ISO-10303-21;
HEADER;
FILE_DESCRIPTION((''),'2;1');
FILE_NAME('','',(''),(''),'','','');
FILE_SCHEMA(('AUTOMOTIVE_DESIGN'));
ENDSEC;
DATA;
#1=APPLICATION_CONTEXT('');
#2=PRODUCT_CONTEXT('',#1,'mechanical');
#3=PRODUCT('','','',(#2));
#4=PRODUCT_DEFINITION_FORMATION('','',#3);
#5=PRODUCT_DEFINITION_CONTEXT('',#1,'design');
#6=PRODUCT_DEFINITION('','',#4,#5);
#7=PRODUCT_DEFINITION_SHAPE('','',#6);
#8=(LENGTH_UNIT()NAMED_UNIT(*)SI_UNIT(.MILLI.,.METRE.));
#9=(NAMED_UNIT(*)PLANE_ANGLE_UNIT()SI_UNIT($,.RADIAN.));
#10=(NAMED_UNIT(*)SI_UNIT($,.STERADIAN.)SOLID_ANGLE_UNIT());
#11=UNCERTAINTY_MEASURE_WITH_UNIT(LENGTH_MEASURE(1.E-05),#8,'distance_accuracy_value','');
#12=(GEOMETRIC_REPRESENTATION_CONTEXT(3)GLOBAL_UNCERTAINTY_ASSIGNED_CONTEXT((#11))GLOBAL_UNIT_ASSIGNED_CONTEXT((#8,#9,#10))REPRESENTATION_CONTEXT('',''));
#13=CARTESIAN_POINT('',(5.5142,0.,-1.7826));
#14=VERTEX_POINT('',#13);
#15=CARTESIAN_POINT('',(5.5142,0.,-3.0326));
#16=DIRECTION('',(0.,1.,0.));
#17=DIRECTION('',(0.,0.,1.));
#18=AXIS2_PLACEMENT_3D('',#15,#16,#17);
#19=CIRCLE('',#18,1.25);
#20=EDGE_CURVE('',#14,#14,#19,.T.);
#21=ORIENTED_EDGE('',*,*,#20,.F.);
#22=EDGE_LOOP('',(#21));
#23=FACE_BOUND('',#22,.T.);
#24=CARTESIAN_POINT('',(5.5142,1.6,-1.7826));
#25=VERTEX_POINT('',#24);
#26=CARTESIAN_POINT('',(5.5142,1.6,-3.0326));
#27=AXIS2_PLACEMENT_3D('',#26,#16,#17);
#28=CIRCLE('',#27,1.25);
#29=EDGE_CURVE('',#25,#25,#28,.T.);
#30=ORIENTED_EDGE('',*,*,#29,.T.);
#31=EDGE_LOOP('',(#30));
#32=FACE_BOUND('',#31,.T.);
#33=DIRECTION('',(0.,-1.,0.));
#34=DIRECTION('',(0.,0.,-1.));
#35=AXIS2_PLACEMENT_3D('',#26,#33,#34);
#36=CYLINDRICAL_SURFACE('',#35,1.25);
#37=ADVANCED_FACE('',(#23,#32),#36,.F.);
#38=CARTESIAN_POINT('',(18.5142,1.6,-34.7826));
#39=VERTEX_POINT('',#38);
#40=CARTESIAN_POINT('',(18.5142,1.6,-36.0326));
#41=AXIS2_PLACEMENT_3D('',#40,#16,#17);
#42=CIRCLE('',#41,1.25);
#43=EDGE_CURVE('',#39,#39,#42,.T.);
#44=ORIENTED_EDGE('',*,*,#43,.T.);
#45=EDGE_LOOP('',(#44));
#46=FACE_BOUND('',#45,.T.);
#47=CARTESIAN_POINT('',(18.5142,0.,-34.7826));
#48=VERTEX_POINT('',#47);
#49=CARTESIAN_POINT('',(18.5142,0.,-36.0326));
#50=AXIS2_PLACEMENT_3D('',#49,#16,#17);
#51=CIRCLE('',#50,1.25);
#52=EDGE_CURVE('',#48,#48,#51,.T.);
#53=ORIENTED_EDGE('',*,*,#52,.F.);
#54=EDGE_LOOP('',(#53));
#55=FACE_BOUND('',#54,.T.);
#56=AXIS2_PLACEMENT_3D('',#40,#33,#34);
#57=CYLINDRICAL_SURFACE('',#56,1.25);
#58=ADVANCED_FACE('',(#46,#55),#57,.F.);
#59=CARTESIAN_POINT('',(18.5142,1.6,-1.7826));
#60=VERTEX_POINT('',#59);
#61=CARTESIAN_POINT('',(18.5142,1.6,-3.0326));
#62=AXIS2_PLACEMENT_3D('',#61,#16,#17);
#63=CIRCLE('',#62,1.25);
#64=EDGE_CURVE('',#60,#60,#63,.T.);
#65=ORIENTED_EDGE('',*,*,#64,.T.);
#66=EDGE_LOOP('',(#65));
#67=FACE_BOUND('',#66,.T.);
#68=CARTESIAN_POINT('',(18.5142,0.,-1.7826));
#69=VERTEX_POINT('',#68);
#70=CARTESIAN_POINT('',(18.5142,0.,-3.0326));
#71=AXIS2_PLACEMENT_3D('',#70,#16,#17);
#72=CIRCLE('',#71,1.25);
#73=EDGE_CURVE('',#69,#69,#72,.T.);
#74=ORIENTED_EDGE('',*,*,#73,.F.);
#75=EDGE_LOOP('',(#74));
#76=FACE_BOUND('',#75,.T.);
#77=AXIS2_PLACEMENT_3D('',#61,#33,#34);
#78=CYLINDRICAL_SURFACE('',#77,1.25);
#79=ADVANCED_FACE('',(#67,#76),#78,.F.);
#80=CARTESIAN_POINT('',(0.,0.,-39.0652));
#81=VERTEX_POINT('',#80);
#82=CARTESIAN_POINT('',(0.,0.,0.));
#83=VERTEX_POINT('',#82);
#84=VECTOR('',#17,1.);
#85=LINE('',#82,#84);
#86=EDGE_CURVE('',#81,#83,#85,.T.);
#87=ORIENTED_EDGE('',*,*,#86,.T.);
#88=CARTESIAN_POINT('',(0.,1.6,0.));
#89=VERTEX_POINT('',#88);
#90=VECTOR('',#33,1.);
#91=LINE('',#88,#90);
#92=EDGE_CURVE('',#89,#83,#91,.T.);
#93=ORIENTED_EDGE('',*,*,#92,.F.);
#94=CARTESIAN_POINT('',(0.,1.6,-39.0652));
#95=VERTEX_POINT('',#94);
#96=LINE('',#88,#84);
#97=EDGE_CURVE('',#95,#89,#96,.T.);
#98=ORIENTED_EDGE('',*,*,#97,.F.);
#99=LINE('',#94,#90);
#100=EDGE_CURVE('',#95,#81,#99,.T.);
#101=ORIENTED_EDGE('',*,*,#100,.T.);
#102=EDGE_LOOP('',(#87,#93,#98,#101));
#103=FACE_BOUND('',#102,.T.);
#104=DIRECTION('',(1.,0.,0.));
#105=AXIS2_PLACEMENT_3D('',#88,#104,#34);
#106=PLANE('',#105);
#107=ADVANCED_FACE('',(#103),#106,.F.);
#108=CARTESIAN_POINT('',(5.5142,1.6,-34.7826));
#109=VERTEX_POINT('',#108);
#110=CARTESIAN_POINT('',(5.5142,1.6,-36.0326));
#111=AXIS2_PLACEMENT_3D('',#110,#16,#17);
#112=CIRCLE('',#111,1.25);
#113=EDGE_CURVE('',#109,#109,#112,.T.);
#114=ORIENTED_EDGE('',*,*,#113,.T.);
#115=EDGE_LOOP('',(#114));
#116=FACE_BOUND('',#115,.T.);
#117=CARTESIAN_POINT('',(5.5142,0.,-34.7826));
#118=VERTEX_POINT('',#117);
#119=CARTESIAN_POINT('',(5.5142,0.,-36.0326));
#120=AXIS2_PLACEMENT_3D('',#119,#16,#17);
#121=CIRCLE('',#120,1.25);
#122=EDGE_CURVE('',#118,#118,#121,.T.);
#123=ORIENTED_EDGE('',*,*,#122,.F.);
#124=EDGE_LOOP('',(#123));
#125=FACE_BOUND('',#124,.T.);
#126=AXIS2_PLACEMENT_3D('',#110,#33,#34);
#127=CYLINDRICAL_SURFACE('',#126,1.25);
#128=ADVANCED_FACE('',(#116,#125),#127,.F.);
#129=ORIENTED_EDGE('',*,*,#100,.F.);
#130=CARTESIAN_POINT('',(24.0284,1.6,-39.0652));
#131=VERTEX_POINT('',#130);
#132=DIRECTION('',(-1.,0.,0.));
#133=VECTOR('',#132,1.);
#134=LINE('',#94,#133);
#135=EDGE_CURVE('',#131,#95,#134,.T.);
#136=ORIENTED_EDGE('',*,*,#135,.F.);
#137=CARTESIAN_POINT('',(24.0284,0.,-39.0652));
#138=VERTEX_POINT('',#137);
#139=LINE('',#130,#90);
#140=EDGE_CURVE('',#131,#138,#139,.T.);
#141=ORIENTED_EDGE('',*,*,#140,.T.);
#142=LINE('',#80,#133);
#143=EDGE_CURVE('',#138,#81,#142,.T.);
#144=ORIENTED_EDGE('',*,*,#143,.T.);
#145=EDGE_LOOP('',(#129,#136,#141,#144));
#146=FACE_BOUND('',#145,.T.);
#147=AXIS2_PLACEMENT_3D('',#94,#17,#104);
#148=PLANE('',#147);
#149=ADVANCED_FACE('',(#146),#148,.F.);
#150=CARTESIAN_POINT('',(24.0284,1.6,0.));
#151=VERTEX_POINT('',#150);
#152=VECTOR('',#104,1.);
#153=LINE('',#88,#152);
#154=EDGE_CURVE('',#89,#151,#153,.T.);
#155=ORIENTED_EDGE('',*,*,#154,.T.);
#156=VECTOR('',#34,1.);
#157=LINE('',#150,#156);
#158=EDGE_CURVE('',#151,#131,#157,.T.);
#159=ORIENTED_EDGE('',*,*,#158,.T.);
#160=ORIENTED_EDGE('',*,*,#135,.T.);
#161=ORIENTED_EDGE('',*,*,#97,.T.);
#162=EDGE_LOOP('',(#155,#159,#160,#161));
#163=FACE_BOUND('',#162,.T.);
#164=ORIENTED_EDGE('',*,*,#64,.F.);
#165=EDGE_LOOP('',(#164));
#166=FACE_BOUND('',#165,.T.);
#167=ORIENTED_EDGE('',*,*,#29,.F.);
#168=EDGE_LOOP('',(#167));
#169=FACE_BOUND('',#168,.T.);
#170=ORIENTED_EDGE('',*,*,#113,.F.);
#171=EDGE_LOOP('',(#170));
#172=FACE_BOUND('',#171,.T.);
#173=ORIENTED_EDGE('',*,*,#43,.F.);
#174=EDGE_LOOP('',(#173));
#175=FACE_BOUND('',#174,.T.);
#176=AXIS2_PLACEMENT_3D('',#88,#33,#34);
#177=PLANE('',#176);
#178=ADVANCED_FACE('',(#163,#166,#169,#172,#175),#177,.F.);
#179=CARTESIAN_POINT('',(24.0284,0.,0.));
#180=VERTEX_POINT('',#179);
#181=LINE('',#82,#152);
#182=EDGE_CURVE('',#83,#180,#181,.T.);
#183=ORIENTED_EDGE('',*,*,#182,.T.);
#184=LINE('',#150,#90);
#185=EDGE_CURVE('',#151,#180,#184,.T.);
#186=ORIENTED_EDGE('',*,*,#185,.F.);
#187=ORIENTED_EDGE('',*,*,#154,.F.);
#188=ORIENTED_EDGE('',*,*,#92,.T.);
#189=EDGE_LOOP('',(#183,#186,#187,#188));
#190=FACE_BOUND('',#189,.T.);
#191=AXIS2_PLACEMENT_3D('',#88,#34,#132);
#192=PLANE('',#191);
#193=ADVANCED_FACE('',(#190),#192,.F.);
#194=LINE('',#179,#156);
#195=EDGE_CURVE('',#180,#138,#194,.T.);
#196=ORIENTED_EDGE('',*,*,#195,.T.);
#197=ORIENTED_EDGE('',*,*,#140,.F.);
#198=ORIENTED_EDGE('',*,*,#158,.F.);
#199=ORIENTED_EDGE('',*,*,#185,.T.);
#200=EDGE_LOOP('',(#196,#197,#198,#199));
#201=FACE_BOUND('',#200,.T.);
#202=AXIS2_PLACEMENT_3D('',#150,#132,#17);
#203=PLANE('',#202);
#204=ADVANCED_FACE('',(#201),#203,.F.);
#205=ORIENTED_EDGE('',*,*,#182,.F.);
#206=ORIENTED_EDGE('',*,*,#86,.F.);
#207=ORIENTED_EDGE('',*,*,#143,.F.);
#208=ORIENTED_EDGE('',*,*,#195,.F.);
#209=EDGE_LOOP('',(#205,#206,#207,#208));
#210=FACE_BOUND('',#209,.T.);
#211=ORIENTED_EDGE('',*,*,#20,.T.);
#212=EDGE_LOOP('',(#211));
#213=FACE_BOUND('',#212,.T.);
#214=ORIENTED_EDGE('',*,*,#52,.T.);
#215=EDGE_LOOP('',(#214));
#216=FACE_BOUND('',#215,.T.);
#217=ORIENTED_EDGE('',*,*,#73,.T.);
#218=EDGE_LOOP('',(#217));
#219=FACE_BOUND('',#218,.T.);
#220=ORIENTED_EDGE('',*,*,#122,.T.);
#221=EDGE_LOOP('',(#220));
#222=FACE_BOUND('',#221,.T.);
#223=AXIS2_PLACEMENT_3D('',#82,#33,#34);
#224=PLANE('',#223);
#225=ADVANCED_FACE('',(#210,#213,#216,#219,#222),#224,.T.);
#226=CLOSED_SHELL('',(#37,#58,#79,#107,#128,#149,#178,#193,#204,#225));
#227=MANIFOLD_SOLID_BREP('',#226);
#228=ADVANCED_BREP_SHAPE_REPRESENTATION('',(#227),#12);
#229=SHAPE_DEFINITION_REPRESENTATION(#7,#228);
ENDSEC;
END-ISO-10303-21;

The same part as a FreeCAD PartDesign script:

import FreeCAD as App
import Part
import Sketcher
from FreeCAD import Vector

doc = App.newDocument("Part")
params = doc.addObject("Spreadsheet::Sheet", "Params")
for row, (alias, value) in enumerate([
    ("sketch1_diameter", "2.5 mm"),
    ("pad1_length", "1.6 mm"),
], start=1):
    params.set(f"A{row}", alias)
    params.set(f"B{row}", "=" + value)
    params.setAlias(f"B{row}", alias)

body = doc.addObject("PartDesign::Body", "Body")

# Sketch on XZ plane
sketch1 = body.newObject("Sketcher::SketchObject", "Sketch")
sketch1.AttachmentSupport = (doc.getObject("XZ_Plane"), [""])
sketch1.MapMode = "FlatFace"
sketch1.addGeometry([
    Part.LineSegment(Vector(0, -39.1, 0), Vector(0, 0, 0)),  # 0
    Part.LineSegment(Vector(0, 0, 0), Vector(24, 0, 0)),  # 1
    Part.LineSegment(Vector(24, 0, 0), Vector(24, -39.1, 0)),  # 2
    Part.LineSegment(Vector(24, -39.1, 0), Vector(0, -39.1, 0)),  # 3
    Part.Circle(Vector(5.5, -3, 0), Vector(0, 0, 1), 1.2),  # 4
    Part.Circle(Vector(18.5, -3, 0), Vector(0, 0, 1), 1.2),  # 5
    Part.Circle(Vector(5.5, -36, 0), Vector(0, 0, 1), 1.2),  # 6
    Part.Circle(Vector(18.5, -36, 0), Vector(0, 0, 1), 1.2),  # 7
], False)
sketch1.addConstraint([
    Sketcher.Constraint("Coincident", 0, 2, 1, 1),
    Sketcher.Constraint("Coincident", 1, 2, 2, 1),
    Sketcher.Constraint("Coincident", 2, 2, 3, 1),
    Sketcher.Constraint("Coincident", 3, 2, 0, 1),
    Sketcher.Constraint("Vertical", 0),
    Sketcher.Constraint("Horizontal", 1),
    Sketcher.Constraint("Vertical", 2),
    Sketcher.Constraint("Horizontal", 3),
    Sketcher.Constraint("Coincident", 0, 2, -1, 1),
    Sketcher.Constraint("Equal", 4, 5),
    Sketcher.Constraint("Equal", 5, 6),
    Sketcher.Constraint("Equal", 6, 7),
    Sketcher.Constraint("Horizontal", 4, 3, 5, 3),
    Sketcher.Constraint("Horizontal", 6, 3, 7, 3),
    Sketcher.Constraint("Vertical", 4, 3, 6, 3),
    Sketcher.Constraint("Vertical", 5, 3, 7, 3),
    Sketcher.Constraint("Diameter", 4, 2.5),
    Sketcher.Constraint("DistanceX", 4, 3, 5, 3, 13.0),
    Sketcher.Constraint("DistanceY", 6, 3, 4, 3, 33.0),
    Sketcher.Constraint("DistanceX", 1, 1, 1, 2, 24.0284),
    Sketcher.Constraint("DistanceY", 0, 1, 0, 2, 39.0652),
    Sketcher.Constraint("DistanceX", -1, 1, 4, 3, 5.5142),
    Sketcher.Constraint("DistanceY", 4, 3, -1, 1, 3.0326),
])
sketch1.setExpression("Constraints[16]", "Params.sketch1_diameter")
pad1 = body.newObject("PartDesign::Pad", "Pad")
pad1.Profile = sketch1
pad1.setExpression("Length", "Params.pad1_length")
pad1.Reversed = True

doc.recompute()
